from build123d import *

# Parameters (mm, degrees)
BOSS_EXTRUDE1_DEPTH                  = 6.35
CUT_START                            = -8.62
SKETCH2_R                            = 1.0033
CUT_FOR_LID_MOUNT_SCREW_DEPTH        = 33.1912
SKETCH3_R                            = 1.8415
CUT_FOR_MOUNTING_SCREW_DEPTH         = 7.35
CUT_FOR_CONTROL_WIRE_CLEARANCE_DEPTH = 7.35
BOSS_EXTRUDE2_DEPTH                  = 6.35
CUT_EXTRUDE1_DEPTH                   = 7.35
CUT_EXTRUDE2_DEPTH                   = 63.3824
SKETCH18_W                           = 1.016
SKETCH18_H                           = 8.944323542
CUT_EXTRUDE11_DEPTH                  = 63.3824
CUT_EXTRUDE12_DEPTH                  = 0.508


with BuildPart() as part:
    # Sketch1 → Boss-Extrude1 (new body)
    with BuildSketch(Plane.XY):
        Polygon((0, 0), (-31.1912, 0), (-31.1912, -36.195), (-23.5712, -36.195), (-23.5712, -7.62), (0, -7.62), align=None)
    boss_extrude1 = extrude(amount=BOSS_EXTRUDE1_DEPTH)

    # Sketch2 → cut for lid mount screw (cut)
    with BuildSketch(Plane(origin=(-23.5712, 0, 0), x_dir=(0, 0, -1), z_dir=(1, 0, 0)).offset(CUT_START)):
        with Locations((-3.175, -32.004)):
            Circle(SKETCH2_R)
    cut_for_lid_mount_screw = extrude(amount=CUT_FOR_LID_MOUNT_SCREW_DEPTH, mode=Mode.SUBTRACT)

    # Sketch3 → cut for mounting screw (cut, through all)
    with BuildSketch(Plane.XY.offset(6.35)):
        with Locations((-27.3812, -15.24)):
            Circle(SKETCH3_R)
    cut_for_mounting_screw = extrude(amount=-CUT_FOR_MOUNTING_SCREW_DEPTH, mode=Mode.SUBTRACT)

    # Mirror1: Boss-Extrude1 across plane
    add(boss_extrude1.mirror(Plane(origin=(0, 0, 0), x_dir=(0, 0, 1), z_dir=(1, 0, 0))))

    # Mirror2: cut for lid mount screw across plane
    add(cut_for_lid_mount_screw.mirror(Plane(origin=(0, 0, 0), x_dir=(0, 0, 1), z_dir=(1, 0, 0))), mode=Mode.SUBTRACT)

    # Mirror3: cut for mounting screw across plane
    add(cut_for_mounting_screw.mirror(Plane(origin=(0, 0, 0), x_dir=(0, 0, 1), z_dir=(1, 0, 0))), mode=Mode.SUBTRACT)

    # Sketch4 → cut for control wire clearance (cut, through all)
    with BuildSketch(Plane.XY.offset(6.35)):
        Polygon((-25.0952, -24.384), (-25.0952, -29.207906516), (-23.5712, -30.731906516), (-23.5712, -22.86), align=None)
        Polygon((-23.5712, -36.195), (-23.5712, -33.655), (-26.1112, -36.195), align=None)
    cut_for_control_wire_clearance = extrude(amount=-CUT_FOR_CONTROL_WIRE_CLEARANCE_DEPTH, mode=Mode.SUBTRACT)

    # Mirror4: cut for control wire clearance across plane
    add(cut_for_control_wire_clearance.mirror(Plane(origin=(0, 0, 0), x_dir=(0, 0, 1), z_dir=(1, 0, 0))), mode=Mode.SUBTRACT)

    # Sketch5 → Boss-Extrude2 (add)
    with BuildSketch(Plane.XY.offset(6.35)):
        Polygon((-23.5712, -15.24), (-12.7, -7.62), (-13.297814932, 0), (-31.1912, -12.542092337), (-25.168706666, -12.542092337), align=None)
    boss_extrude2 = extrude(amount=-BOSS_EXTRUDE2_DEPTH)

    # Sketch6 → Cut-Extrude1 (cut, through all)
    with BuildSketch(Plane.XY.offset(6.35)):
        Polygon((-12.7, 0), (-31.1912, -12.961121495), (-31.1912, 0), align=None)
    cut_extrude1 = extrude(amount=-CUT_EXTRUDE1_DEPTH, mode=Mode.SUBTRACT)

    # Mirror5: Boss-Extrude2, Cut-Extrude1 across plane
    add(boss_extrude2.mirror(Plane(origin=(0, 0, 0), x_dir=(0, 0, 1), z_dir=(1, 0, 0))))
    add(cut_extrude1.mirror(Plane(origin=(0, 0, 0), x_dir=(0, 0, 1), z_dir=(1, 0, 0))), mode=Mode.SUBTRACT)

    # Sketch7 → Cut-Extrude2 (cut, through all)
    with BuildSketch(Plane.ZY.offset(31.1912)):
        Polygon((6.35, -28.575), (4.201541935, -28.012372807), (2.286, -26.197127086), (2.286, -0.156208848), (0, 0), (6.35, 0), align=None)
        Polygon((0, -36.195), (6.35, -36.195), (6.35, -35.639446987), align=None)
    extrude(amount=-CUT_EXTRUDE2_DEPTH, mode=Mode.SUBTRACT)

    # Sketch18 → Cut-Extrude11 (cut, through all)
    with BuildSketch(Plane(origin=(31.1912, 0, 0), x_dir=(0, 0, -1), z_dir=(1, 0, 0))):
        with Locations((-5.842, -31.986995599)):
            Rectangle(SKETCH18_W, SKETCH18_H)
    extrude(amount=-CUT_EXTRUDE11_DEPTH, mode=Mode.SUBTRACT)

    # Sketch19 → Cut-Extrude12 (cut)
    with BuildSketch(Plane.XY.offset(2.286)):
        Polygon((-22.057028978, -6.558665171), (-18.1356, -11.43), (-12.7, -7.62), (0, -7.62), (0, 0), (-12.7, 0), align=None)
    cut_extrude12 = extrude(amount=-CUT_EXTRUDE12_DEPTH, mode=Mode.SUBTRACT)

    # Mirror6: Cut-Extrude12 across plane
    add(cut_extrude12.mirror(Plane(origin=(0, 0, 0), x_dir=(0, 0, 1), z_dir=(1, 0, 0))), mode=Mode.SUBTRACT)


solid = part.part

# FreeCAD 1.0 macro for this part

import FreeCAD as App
import Part
import Sketcher
Q = App.Units.Quantity

doc = App.newDocument("Part")
params = doc.addObject("Spreadsheet::Sheet", "Params")
for row, (alias, value) in enumerate([
    ("sketch1_width", "0.3 in"),
    ("sketch1_width2", "1.228 in"),
    ("sketch1_height", "1.425 in"),
    ("pad1_length", "0.25 in"),
    ("sketch2_diameter", "0.079 in"),
    ("pocket1_length", "33.1912 mm"),
    ("sketch3_diameter", "0.145 in"),
    ("sketch4_width", "0.1 in"),
    ("pad2_length", "0.25 in"),
    ("sketch6_width", "0.728 in"),
    ("sketch7_height", "0.25 in"),
    ("sketch7_width", "1.125 in"),
    ("sketch8_height", "0.04 in"),
    ("sketch9_width", "0.5 in"),
    ("sketch9_height", "0.3 in"),
    ("pocket7_length", "0.02 in"),
], start=1):
    params.set(f"A{row}", alias)
    params.set(f"B{row}", "=" + value)
    params.setAlias(f"B{row}", alias)

body = doc.addObject("PartDesign::Body", "Body")

sketch1 = body.newObject("Sketcher::SketchObject", "Sketch")
sketch1.AttachmentSupport = (doc.getObject("XY_Plane"), [""])
sketch1.MapMode = "FlatFace"
sketch1.addGeometry([
    Part.LineSegment(App.Vector(0, 0, 0), App.Vector(-31.1912, 0, 0)),
    Part.LineSegment(App.Vector(-31.1912, 0, 0), App.Vector(-31.1912, -36.195, 0)),
    Part.LineSegment(App.Vector(-31.1912, -36.195, 0), App.Vector(-23.5712, -36.195, 0)),
    Part.LineSegment(App.Vector(-23.5712, -36.195, 0), App.Vector(-23.5712, -7.62, 0)),
    Part.LineSegment(App.Vector(-23.5712, -7.62, 0), App.Vector(0, -7.62, 0)),
    Part.LineSegment(App.Vector(0, -7.62, 0), App.Vector(0, 0, 0)),
], False)
sketch1.addConstraint([
    Sketcher.Constraint("Coincident", 0, 2, 1, 1),
    Sketcher.Constraint("Coincident", 1, 2, 2, 1),
    Sketcher.Constraint("Coincident", 2, 2, 3, 1),
    Sketcher.Constraint("Coincident", 3, 2, 4, 1),
    Sketcher.Constraint("Coincident", 4, 2, 5, 1),
    Sketcher.Constraint("Coincident", 5, 2, 0, 1),
    Sketcher.Constraint("Horizontal", 0),
    Sketcher.Constraint("Vertical", 1),
    Sketcher.Constraint("Horizontal", 2),
    Sketcher.Constraint("Vertical", 3),
    Sketcher.Constraint("Horizontal", 4),
    Sketcher.Constraint("Vertical", 5),
    Sketcher.Constraint("Coincident", 5, 2, -1, 1),
    Sketcher.Constraint("Equal", 2, 5),
    Sketcher.Constraint("DistanceX", 2, 1, 2, 2, Q("0.3 in")),
    Sketcher.Constraint("DistanceX", 0, 2, 0, 1, Q("1.228 in")),
    Sketcher.Constraint("DistanceY", 1, 2, 1, 1, Q("1.425 in")),
])
sketch1.setExpression("Constraints[14]", "Params.sketch1_width")
sketch1.setExpression("Constraints[15]", "Params.sketch1_width2")
sketch1.setExpression("Constraints[16]", "Params.sketch1_height")
pad1 = body.newObject("PartDesign::Pad", "Pad")
pad1.Profile = sketch1
pad1.setExpression("Length", "Params.pad1_length")

sketch2 = body.newObject("Sketcher::SketchObject", "Sketch001")
sketch2.AttachmentSupport = (doc.getObject("YZ_Plane"), [""])
sketch2.MapMode = "FlatFace"
sketch2.AttachmentOffset = App.Placement(App.Vector(0, 0, -32.1912), App.Rotation())
sketch2.addGeometry(Part.Circle(App.Vector(-32.004, 3.175, 0), App.Vector(0, 0, 1), 1.0033), False)
sketch2.addConstraint([
    Sketcher.Constraint("Diameter", 0, Q("0.079 in")),
    Sketcher.Constraint("DistanceX", 0, 3, -1, 1, Q("1.26 in")),
    Sketcher.Constraint("DistanceY", -1, 1, 0, 3, Q("0.125 in")),
])
sketch2.setExpression("Constraints[0]", "Params.sketch2_diameter")
pocket1 = body.newObject("PartDesign::Pocket", "Pocket")
pocket1.Profile = sketch2
pocket1.setExpression("Length", "Params.pocket1_length")
pocket1.Reversed = True

sketch3 = body.newObject("Sketcher::SketchObject", "Sketch002")
sketch3.AttachmentSupport = (doc.getObject("XY_Plane"), [""])
sketch3.MapMode = "FlatFace"
sketch3.AttachmentOffset = App.Placement(App.Vector(0, 0, 0.25 * 25.4), App.Rotation())
sketch3.addGeometry(Part.Circle(App.Vector(-27.3812, -15.24, 0), App.Vector(0, 0, 1), 1.8415), False)
sketch3.addConstraint([
    Sketcher.Constraint("Diameter", 0, Q("0.145 in")),
    Sketcher.Constraint("DistanceY", 0, 3, -1, 1, Q("0.6 in")),
    Sketcher.Constraint("DistanceX", 0, 3, -1, 1, Q("1.078 in")),
])
sketch3.setExpression("Constraints[0]", "Params.sketch3_diameter")
pocket2 = body.newObject("PartDesign::Pocket", "Pocket001")
pocket2.Profile = sketch3
pocket2.Type = "ThroughAll"
doc.recompute()

mirrored = body.newObject("PartDesign::Mirrored", "Mirrored")
mirrored.Originals = [pad1]
mirrored.MirrorPlane = (doc.getObject("YZ_Plane"), [""])
body.Tip = mirrored
doc.recompute()

mirrored2 = body.newObject("PartDesign::Mirrored", "Mirrored001")
mirrored2.Originals = [pocket1]
mirrored2.MirrorPlane = (doc.getObject("YZ_Plane"), [""])
body.Tip = mirrored2
doc.recompute()

mirrored3 = body.newObject("PartDesign::Mirrored", "Mirrored002")
mirrored3.Originals = [pocket2]
mirrored3.MirrorPlane = (doc.getObject("YZ_Plane"), [""])
body.Tip = mirrored3

sketch4 = body.newObject("Sketcher::SketchObject", "Sketch003")
sketch4.AttachmentSupport = (doc.getObject("XY_Plane"), [""])
sketch4.MapMode = "FlatFace"
sketch4.AttachmentOffset = App.Placement(App.Vector(0, 0, 0.25 * 25.4), App.Rotation())
sketch4.addGeometry([
    Part.LineSegment(App.Vector(-25.0952, -24.384, 0), App.Vector(-25.0952, -29.207907, 0)),
    Part.LineSegment(App.Vector(-25.0952, -29.207907, 0), App.Vector(-23.5712, -30.731907, 0)),
    Part.LineSegment(App.Vector(-23.5712, -30.731907, 0), App.Vector(-23.5712, -22.86, 0)),
    Part.LineSegment(App.Vector(-23.5712, -22.86, 0), App.Vector(-25.0952, -24.384, 0)),
    Part.LineSegment(App.Vector(-23.5712, -36.195, 0), App.Vector(-23.5712, -33.655, 0)),
    Part.LineSegment(App.Vector(-23.5712, -33.655, 0), App.Vector(-26.1112, -36.195, 0)),
    Part.LineSegment(App.Vector(-26.1112, -36.195, 0), App.Vector(-23.5712, -36.195, 0)),
], False)
sketch4.addConstraint([
    Sketcher.Constraint("Coincident", 0, 2, 1, 1),
    Sketcher.Constraint("Coincident", 1, 2, 2, 1),
    Sketcher.Constraint("Coincident", 2, 2, 3, 1),
    Sketcher.Constraint("Coincident", 3, 2, 0, 1),
    Sketcher.Constraint("Coincident", 4, 2, 5, 1),
    Sketcher.Constraint("Coincident", 5, 2, 6, 1),
    Sketcher.Constraint("Coincident", 6, 2, 4, 1),
    Sketcher.Constraint("Vertical", 0),
    Sketcher.Constraint("Vertical", 2),
    Sketcher.Constraint("Vertical", 4),
    Sketcher.Constraint("Horizontal", 6),
    Sketcher.Constraint("Perpendicular", 1, 3),
    Sketcher.Constraint("Parallel", 3, 5),
    Sketcher.Constraint("Vertical", 2, 2, 4, 2),
    Sketcher.Constraint("Equal", 6, 4),
    Sketcher.Constraint("DistanceX", 6, 1, 6, 2, Q("0.1 in")),
    Sketcher.Constraint("DistanceY", 2, 2, -1, 1, Q("0.9 in")),
    Sketcher.Constraint("DistanceY", 3, 2, -1, 1, Q("0.96 in")),
    Sketcher.Constraint("DistanceX", 0, 2, -1, 1, Q("0.988 in")),
    Sketcher.Constraint("DistanceY", 4, 2, -1, 1, Q("1.325 in")),
    Sketcher.Constraint("DistanceY", 0, 2, 0, 1, 4.823907),
])
sketch4.setExpression("Constraints[15]", "Params.sketch4_width")
pocket3 = body.newObject("PartDesign::Pocket", "Pocket002")
pocket3.Profile = sketch4
pocket3.Type = "ThroughAll"
doc.recompute()

mirrored4 = body.newObject("PartDesign::Mirrored", "Mirrored003")
mirrored4.Originals = [pocket3]
mirrored4.MirrorPlane = (doc.getObject("YZ_Plane"), [""])
body.Tip = mirrored4

sketch5 = body.newObject("Sketcher::SketchObject", "Sketch004")
sketch5.AttachmentSupport = (doc.getObject("XY_Plane"), [""])
sketch5.MapMode = "FlatFace"
sketch5.AttachmentOffset = App.Placement(App.Vector(0, 0, 0.25 * 25.4), App.Rotation())
sketch5.addGeometry([
    Part.LineSegment(App.Vector(-23.5712, -15.24, 0), App.Vector(-12.7, -7.62, 0)),
    Part.LineSegment(App.Vector(-12.7, -7.62, 0), App.Vector(-13.297815, 0, 0)),
    Part.LineSegment(App.Vector(-13.297815, 0, 0), App.Vector(-31.1912, -12.542092, 0)),
    Part.LineSegment(App.Vector(-31.1912, -12.542092, 0), App.Vector(-25.168707, -12.542092, 0)),
    Part.LineSegment(App.Vector(-25.168707, -12.542092, 0), App.Vector(-23.5712, -15.24, 0)),
], False)
sketch5.addConstraint([
    Sketcher.Constraint("Coincident", 0, 2, 1, 1),
    Sketcher.Constraint("Coincident", 1, 2, 2, 1),
    Sketcher.Constraint("Coincident", 2, 2, 3, 1),
    Sketcher.Constraint("Coincident", 3, 2, 4, 1),
    Sketcher.Constraint("Coincident", 4, 2, 0, 1),
    Sketcher.Constraint("Horizontal", 3),
    Sketcher.Constraint("PointOnObject", 1, 2, -1),
    Sketcher.Constraint("Parallel", 0, 2),
    Sketcher.Constraint("DistanceX", 0, 2, -1, 1, Q("0.5 in")),
    Sketcher.Constraint("DistanceY", 0, 2, -1, 1, Q("0.3 in")),
    Sketcher.Constraint("DistanceY", 4, 2, -1, 1, Q("0.6 in")),
    Sketcher.Constraint("DistanceX", 2, 2, 4, 2, Q("0.3 in")),
    Sketcher.Constraint("DistanceX", 2, 2, -1, 1, Q("1.228 in")),
    Sketcher.Constraint("Distance", 4, 3.1354),
    Sketcher.Constraint("DistanceX", 3, 1, 3, 2, 6.022493),
])
pad2 = body.newObject("PartDesign::Pad", "Pad001")
pad2.Profile = sketch5
pad2.setExpression("Length", "Params.pad2_length")
pad2.Reversed = True

sketch6 = body.newObject("Sketcher::SketchObject", "Sketch005")
sketch6.AttachmentSupport = (doc.getObject("XY_Plane"), [""])
sketch6.MapMode = "FlatFace"
sketch6.AttachmentOffset = App.Placement(App.Vector(0, 0, 0.25 * 25.4), App.Rotation())
sketch6.addGeometry([
    Part.LineSegment(App.Vector(-31.1912, -12.961121, 0), App.Vector(-12.7, 0, 0)),
    Part.LineSegment(App.Vector(-12.7, 0, 0), App.Vector(-31.1912, 0, 0)),
    Part.LineSegment(App.Vector(-31.1912, 0, 0), App.Vector(-31.1912, -12.961121, 0)),
], False)
sketch6.addConstraint([
    Sketcher.Constraint("Coincident", 0, 2, 1, 1),
    Sketcher.Constraint("Coincident", 1, 2, 2, 1),
    Sketcher.Constraint("Coincident", 2, 2, 0, 1),
    Sketcher.Constraint("Horizontal", 1),
    Sketcher.Constraint("Vertical", 2),
    Sketcher.Constraint("PointOnObject", 0, 2, -1),
    Sketcher.Constraint("DistanceX", 0, 2, -1, 1, Q("0.5 in")),
    Sketcher.Constraint("DistanceX", 1, 2, 1, 1, Q("0.728 in")),
    Sketcher.Constraint("Distance", 0, 22.581301),
])
sketch6.setExpression("Constraints[7]", "Params.sketch6_width")
pocket4 = body.newObject("PartDesign::Pocket", "Pocket003")
pocket4.Profile = sketch6
pocket4.Type = "ThroughAll"
doc.recompute()

mirrored5 = body.newObject("PartDesign::Mirrored", "Mirrored004")
mirrored5.Originals = [pad2, pocket4]
mirrored5.MirrorPlane = (doc.getObject("YZ_Plane"), [""])
body.Tip = mirrored5

sketch7 = body.newObject("Sketcher::SketchObject", "Sketch006")
sketch7.AttachmentSupport = (doc.getObject("YZ_Plane"), [""])
sketch7.MapMode = "FlatFace"
sketch7.AttachmentOffset = App.Placement(App.Vector(0, 0, -1.228 * 25.4), App.Rotation())
sketch7.addGeometry([
    Part.LineSegment(App.Vector(-28.012373, 4.201542, 0), App.Vector(-28.575, 6.35, 0)),
    Part.LineSegment(App.Vector(-28.575, 6.35, 0), App.Vector(0, 6.35, 0)),
    Part.LineSegment(App.Vector(0, 6.35, 0), App.Vector(0, 0, 0)),
    Part.LineSegment(App.Vector(0, 0, 0), App.Vector(-0.156209, 2.286, 0)),
    Part.LineSegment(App.Vector(-0.156209, 2.286, 0), App.Vector(-26.197127, 2.286, 0)),
    Part.LineSegment(App.Vector(-26.197127, 2.286, 0), App.Vector(-28.012373, 4.201542, 0)),
    Part.LineSegment(App.Vector(-36.195, 0, 0), App.Vector(-36.195, 6.35, 0)),
    Part.LineSegment(App.Vector(-36.195, 6.35, 0), App.Vector(-35.639447, 6.35, 0)),
    Part.LineSegment(App.Vector(-35.639447, 6.35, 0), App.Vector(-36.195, 0, 0)),
], False)
sketch7.addConstraint([
    Sketcher.Constraint("Coincident", 0, 2, 1, 1),
    Sketcher.Constraint("Coincident", 1, 2, 2, 1),
    Sketcher.Constraint("Coincident", 2, 2, 3, 1),
    Sketcher.Constraint("Coincident", 3, 2, 4, 1),
    Sketcher.Constraint("Coincident", 4, 2, 5, 1),
    Sketcher.Constraint("Coincident", 5, 2, 0, 1),
    Sketcher.Constraint("Coincident", 6, 2, 7, 1),
    Sketcher.Constraint("Coincident", 7, 2, 8, 1),
    Sketcher.Constraint("Coincident", 8, 2, 6, 1),
    Sketcher.Constraint("Horizontal", 1),
    Sketcher.Constraint("Vertical", 2),
    Sketcher.Constraint("Horizontal", 4),
    Sketcher.Constraint("Vertical", 6),
    Sketcher.Constraint("Horizontal", 7),
    Sketcher.Constraint("Coincident", 2, 2, -1, 1),
    Sketcher.Constraint("PointOnObject", 8, 2, -1),
    Sketcher.Constraint("Horizontal", 1, 2, 6, 2),
    Sketcher.Constraint("Angle", 8, Q("-95 deg")),
    Sketcher.Constraint("DistanceY", 2, 2, 2, 1, Q("0.25 in")),
    Sketcher.Constraint("DistanceX", 6, 2, 0, 2, Q("0.3 in")),
    Sketcher.Constraint("DistanceX", 1, 1, 1, 2, Q("1.125 in")),
    Sketcher.Constraint("DistanceY", -1, 1, 3, 2, Q("0.09 in")),
    Sketcher.Constraint("DistanceX", 4, 2, 4, 1, 26.040918),
    Sketcher.Constraint("Distance", 3, 2.291331),
    Sketcher.Constraint("Distance", 5, 2.639018),
    Sketcher.Constraint("DistanceY", -1, 1, 5, 2, 4.201542),
])
sketch7.setExpression("Constraints[18]", "Params.sketch7_height")
sketch7.setExpression("Constraints[20]", "Params.sketch7_width")
pocket5 = body.newObject("PartDesign::Pocket", "Pocket004")
pocket5.Profile = sketch7
pocket5.Type = "ThroughAll"
pocket5.Reversed = True

sketch8 = body.newObject("Sketcher::SketchObject", "Sketch007")
sketch8.AttachmentSupport = (doc.getObject("YZ_Plane"), [""])
sketch8.MapMode = "FlatFace"
sketch8.AttachmentOffset = App.Placement(App.Vector(0, 0, 1.228 * 25.4), App.Rotation())
sketch8.addGeometry([
    Part.LineSegment(App.Vector(-27.514834, 6.35, 0), App.Vector(-36.459157, 6.35, 0)),
    Part.LineSegment(App.Vector(-36.459157, 6.35, 0), App.Vector(-36.459157, 5.334, 0)),
    Part.LineSegment(App.Vector(-36.459157, 5.334, 0), App.Vector(-27.514834, 5.334, 0)),
    Part.LineSegment(App.Vector(-27.514834, 5.334, 0), App.Vector(-27.514834, 6.35, 0)),
], False)
sketch8.addConstraint([
    Sketcher.Constraint("Coincident", 0, 2, 1, 1),
    Sketcher.Constraint("Coincident", 1, 2, 2, 1),
    Sketcher.Constraint("Coincident", 2, 2, 3, 1),
    Sketcher.Constraint("Coincident", 3, 2, 0, 1),
    Sketcher.Constraint("Horizontal", 0),
    Sketcher.Constraint("Vertical", 1),
    Sketcher.Constraint("Horizontal", 2),
    Sketcher.Constraint("Vertical", 3),
    Sketcher.Constraint("DistanceY", 1, 2, 1, 1, Q("0.04 in")),
    Sketcher.Constraint("DistanceY", -1, 1, 0, 2, Q("0.25 in")),
    Sketcher.Constraint("DistanceX", 0, 2, -1, 1, Q("1.4353999 in")),
    Sketcher.Constraint("DistanceX", 0, 2, 0, 1, 8.944324),
])
sketch8.setExpression("Constraints[8]", "Params.sketch8_height")
pocket6 = body.newObject("PartDesign::Pocket", "Pocket005")
pocket6.Profile = sketch8
pocket6.Type = "ThroughAll"

sketch9 = body.newObject("Sketcher::SketchObject", "Sketch008")
sketch9.AttachmentSupport = (doc.getObject("XY_Plane"), [""])
sketch9.MapMode = "FlatFace"
sketch9.AttachmentOffset = App.Placement(App.Vector(0, 0, 0.09 * 25.4), App.Rotation())
sketch9.addGeometry([
    Part.LineSegment(App.Vector(-22.057029, -6.558665, 0), App.Vector(-18.1356, -11.43, 0)),
    Part.LineSegment(App.Vector(-18.1356, -11.43, 0), App.Vector(-12.7, -7.62, 0)),
    Part.LineSegment(App.Vector(-12.7, -7.62, 0), App.Vector(0, -7.62, 0)),
    Part.LineSegment(App.Vector(0, -7.62, 0), App.Vector(0, 0, 0)),
    Part.LineSegment(App.Vector(0, 0, 0), App.Vector(-12.7, 0, 0)),
    Part.LineSegment(App.Vector(-12.7, 0, 0), App.Vector(-22.057029, -6.558665, 0)),
], False)
sketch9.addConstraint([
    Sketcher.Constraint("Coincident", 0, 2, 1, 1),
    Sketcher.Constraint("Coincident", 1, 2, 2, 1),
    Sketcher.Constraint("Coincident", 2, 2, 3, 1),
    Sketcher.Constraint("Coincident", 3, 2, 4, 1),
    Sketcher.Constraint("Coincident", 4, 2, 5, 1),
    Sketcher.Constraint("Coincident", 5, 2, 0, 1),
    Sketcher.Constraint("Horizontal", 2),
    Sketcher.Constraint("Vertical", 3),
    Sketcher.Constraint("Horizontal", 4),
    Sketcher.Constraint("Coincident", 3, 2, -1, 1),
    Sketcher.Constraint("Parallel", 1, 5),
    Sketcher.Constraint("Vertical", 1, 2, 4, 2),
    Sketcher.Constraint("DistanceX", 2, 1, 2, 2, Q("0.5 in")),
    Sketcher.Constraint("DistanceY", 3, 1, 3, 2, Q("0.3 in")),
    Sketcher.Constraint("DistanceY", 0, 2, -1, 1, Q("0.45 in")),
    Sketcher.Constraint("DistanceX", 0, 2, -1, 1, Q("0.714 in")),
    Sketcher.Constraint("Distance", 0, 6.2536),
])
sketch9.setExpression("Constraints[12]", "Params.sketch9_width")
sketch9.setExpression("Constraints[13]", "Params.sketch9_height")
pocket7 = body.newObject("PartDesign::Pocket", "Pocket006")
pocket7.Profile = sketch9
pocket7.setExpression("Length", "Params.pocket7_length")
doc.recompute()

mirrored6 = body.newObject("PartDesign::Mirrored", "Mirrored005")
mirrored6.Originals = [pocket7]
mirrored6.MirrorPlane = (doc.getObject("YZ_Plane"), [""])
body.Tip = mirrored6

doc.recompute()
